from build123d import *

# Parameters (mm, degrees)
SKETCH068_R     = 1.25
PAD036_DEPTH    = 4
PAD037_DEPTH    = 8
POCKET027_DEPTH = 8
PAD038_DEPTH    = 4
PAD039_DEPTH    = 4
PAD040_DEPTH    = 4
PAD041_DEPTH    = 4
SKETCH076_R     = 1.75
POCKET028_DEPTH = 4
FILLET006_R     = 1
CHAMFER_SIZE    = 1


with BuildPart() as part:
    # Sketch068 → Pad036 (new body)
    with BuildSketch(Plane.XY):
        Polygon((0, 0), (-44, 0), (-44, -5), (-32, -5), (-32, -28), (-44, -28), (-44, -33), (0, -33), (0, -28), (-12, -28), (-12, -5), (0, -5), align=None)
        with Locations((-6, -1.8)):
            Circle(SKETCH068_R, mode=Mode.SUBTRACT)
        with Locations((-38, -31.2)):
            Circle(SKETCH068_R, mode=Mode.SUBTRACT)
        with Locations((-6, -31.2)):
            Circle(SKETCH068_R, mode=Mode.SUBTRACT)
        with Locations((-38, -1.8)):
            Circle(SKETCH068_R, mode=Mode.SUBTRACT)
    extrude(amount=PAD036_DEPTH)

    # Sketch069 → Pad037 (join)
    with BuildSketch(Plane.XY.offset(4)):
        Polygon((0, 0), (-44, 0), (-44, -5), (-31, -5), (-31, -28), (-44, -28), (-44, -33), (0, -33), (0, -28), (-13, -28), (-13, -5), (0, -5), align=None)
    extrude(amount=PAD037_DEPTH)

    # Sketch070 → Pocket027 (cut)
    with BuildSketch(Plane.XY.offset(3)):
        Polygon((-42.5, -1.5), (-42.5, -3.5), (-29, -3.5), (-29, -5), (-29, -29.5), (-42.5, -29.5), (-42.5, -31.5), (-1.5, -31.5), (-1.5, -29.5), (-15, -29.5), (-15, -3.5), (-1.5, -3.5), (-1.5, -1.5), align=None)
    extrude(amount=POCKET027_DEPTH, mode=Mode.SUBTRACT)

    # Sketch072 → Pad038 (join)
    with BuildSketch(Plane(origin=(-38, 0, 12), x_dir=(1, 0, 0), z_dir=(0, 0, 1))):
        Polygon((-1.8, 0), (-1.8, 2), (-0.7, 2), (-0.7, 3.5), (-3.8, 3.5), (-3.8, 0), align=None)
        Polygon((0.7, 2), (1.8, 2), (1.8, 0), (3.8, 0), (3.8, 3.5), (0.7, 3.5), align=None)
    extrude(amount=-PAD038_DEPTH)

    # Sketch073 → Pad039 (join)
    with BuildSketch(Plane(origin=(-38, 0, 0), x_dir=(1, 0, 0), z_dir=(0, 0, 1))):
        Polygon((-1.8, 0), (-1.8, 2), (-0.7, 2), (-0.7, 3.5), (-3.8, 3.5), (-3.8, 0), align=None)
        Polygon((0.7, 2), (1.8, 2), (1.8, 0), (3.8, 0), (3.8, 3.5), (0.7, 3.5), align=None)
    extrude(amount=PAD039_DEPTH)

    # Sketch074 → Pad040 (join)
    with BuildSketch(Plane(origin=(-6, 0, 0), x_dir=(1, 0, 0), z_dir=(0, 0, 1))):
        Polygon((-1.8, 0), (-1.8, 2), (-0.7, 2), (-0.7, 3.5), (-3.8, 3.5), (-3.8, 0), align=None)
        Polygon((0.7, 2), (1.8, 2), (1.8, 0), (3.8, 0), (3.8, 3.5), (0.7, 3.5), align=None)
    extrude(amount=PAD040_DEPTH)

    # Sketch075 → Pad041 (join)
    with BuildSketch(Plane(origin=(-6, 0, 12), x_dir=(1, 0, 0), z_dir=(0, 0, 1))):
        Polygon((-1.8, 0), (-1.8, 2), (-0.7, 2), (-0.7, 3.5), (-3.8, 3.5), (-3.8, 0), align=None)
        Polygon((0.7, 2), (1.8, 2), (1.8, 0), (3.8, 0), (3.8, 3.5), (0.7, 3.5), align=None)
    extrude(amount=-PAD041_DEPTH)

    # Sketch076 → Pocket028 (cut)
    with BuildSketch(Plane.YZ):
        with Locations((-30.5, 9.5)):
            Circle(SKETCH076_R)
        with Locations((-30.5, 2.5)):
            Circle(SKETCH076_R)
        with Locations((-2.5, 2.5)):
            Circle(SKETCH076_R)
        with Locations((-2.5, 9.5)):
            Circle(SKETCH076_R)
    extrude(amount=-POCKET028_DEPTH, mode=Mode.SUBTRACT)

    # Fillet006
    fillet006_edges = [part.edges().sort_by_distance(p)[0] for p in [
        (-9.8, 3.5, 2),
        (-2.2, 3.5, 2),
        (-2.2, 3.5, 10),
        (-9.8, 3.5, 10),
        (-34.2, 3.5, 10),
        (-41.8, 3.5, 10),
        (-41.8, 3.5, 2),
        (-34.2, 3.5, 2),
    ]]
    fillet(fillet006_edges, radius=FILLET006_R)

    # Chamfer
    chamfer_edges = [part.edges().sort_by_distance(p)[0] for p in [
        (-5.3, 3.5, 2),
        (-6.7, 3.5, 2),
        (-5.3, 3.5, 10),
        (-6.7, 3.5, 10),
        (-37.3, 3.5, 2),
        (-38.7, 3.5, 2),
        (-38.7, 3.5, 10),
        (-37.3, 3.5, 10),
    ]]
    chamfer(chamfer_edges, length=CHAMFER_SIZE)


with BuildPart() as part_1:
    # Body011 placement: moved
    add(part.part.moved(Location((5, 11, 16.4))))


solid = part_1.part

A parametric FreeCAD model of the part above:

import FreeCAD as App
import Part
import Sketcher
from FreeCAD import Vector


def edges_at(feature, points):
    """Names of the edges that pass closest to the given points."""
    edges = feature.Shape.Edges
    near = lambda p: min(range(len(edges)), key=lambda i: edges[i].distToShape(Part.Vertex(*p))[0])
    return sorted({f"Edge{near(p) + 1}" for p in points})


def add_polygon(sketch, points):
    """Adds a closed chain of lines whose ends are joined by coincident constraints."""
    first, n = sketch.GeometryCount, len(points)
    for a, b in zip(points, points[1:] + points[:1]):
        sketch.addGeometry(Part.LineSegment(App.Vector(*a, 0), App.Vector(*b, 0)), False)
    for i in range(n):
        sketch.addConstraint(Sketcher.Constraint("Coincident", first + i, 2, first + (i + 1) % n, 1))

doc = App.newDocument("Part")
params = doc.addObject("Spreadsheet::Sheet", "Params")
for row, (alias, value) in enumerate([
    ("sketch1_diameter", "2.5 mm"),
    ("sketch1_width", "44 mm"),
    ("sketch1_width2", "12 mm"),
    ("sketch1_height", "5 mm"),
    ("sketch1_height2", "23 mm"),
    ("pad1_length", "4 mm"),
    ("sketch2_width", "44 mm"),
    ("sketch2_width2", "13 mm"),
    ("sketch2_height", "5 mm"),
    ("sketch2_height2", "23 mm"),
    ("pad2_length", "8 mm"),
    ("sketch3_width", "41 mm"),
    ("sketch3_height", "2 mm"),
    ("sketch3_height2", "26 mm"),
    ("sketch3_width2", "13.5 mm"),
    ("pocket1_length", "8 mm"),
    ("sketch4_width", "2 mm"),
    ("sketch4_width2", "1.1 mm"),
    ("sketch4_height", "1.5 mm"),
    ("pad3_length", "4 mm"),
    ("sketch5_width", "2 mm"),
    ("sketch5_width2", "1.1 mm"),
    ("sketch5_height", "1.5 mm"),
    ("pad4_length", "4 mm"),
    ("sketch6_width", "2 mm"),
    ("sketch6_width2", "1.1 mm"),
    ("sketch6_height", "1.5 mm"),
    ("pad5_length", "4 mm"),
    ("sketch7_width", "2 mm"),
    ("sketch7_width2", "1.1 mm"),
    ("sketch7_height", "1.5 mm"),
    ("pad6_length", "4 mm"),
    ("sketch8_diameter", "3.5 mm"),
    ("pocket2_length", "4 mm"),
    ("fillet_radius", "1 mm"),
    ("chamfer_size", "1 mm"),
], start=1):
    params.set(f"A{row}", alias)
    params.set(f"B{row}", "=" + value)
    params.setAlias(f"B{row}", alias)

body = doc.addObject("PartDesign::Body", "Body")

# Sketch on XY plane
sketch1 = body.newObject("Sketcher::SketchObject", "Sketch")
sketch1.AttachmentSupport = (doc.getObject("XY_Plane"), [""])
sketch1.MapMode = "FlatFace"
add_polygon(sketch1, [(0, 0), (-44, 0), (-44, -5), (-32, -5), (-32, -28), (-44, -28), (-44, -33), (0, -33), (0, -28), (-12, -28), (-12, -5), (0, -5)])  # lines 0-11
sketch1.addGeometry(Part.Circle(Vector(-38, -31.2, 0), Vector(0, 0, 1), 1.25), False)  # 12
sketch1.addGeometry(Part.Circle(Vector(-6, -31.2, 0), Vector(0, 0, 1), 1.25), False)  # 13
sketch1.addGeometry(Part.Circle(Vector(-38, -1.8, 0), Vector(0, 0, 1), 1.25), False)  # 14
sketch1.addGeometry(Part.Circle(Vector(-6, -1.8, 0), Vector(0, 0, 1), 1.25), False)  # 15
sketch1.addConstraint([
    Sketcher.Constraint("Horizontal", 0),
    Sketcher.Constraint("Vertical", 1),
    Sketcher.Constraint("Horizontal", 2),
    Sketcher.Constraint("Vertical", 3),
    Sketcher.Constraint("Horizontal", 4),
    Sketcher.Constraint("Vertical", 5),
    Sketcher.Constraint("Horizontal", 6),
    Sketcher.Constraint("Vertical", 7),
    Sketcher.Constraint("Horizontal", 8),
    Sketcher.Constraint("Vertical", 9),
    Sketcher.Constraint("Horizontal", 10),
    Sketcher.Constraint("Vertical", 11),
    Sketcher.Constraint("Coincident", 11, 2, -1, 1),
    Sketcher.Constraint("Equal", 12, 13),
    Sketcher.Constraint("Equal", 13, 14),
    Sketcher.Constraint("Equal", 14, 15),
    Sketcher.Constraint("PointOnObject", 6, 2, -2),
    Sketcher.Constraint("Horizontal", 12, 3, 13, 3),
    Sketcher.Constraint("Horizontal", 14, 3, 15, 3),
    Sketcher.Constraint("Horizontal", 4, 2, 7, 2),
    Sketcher.Constraint("Horizontal", 2, 2, 9, 2),
    Sketcher.Constraint("Vertical", 12, 3, 14, 3),
    Sketcher.Constraint("Vertical", 13, 3, 15, 3),
    Sketcher.Constraint("Vertical", 1, 2, 4, 2),
    Sketcher.Constraint("Equal", 4, 8),
    Sketcher.Constraint("Equal", 1, 5),
    Sketcher.Constraint("Diameter", 12, 2.5),
    Sketcher.Constraint("DistanceX", 0, 2, 0, 1, 44.0),
    Sketcher.Constraint("DistanceX", 2, 1, 2, 2, 12.0),
    Sketcher.Constraint("DistanceY", 1, 2, 1, 1, 5.0),
    Sketcher.Constraint("DistanceY", 3, 2, 3, 1, 23.0),
    Sketcher.Constraint("DistanceX", 12, 3, -1, 1, 38.0),
    Sketcher.Constraint("DistanceX", 13, 3, -1, 1, 6.0),
    Sketcher.Constraint("DistanceY", 12, 3, -1, 1, 31.2),
    Sketcher.Constraint("DistanceY", 14, 3, -1, 1, 1.8),
])
sketch1.setExpression("Constraints[38]", "Params.sketch1_diameter")
sketch1.setExpression("Constraints[39]", "Params.sketch1_width")
sketch1.setExpression("Constraints[40]", "Params.sketch1_width2")
sketch1.setExpression("Constraints[41]", "Params.sketch1_height")
sketch1.setExpression("Constraints[42]", "Params.sketch1_height2")
pad1 = body.newObject("PartDesign::Pad", "Pad")
pad1.Profile = sketch1
pad1.setExpression("Length", "Params.pad1_length")

# Sketch on XY plane
sketch2 = body.newObject("Sketcher::SketchObject", "Sketch001")
sketch2.AttachmentSupport = (doc.getObject("XY_Plane"), [""])
sketch2.MapMode = "FlatFace"
sketch2.AttachmentOffset = App.Placement(Vector(0, 0, 4), App.Rotation())
add_polygon(sketch2, [(0, 0), (-44, 0), (-44, -5), (-31, -5), (-31, -28), (-44, -28), (-44, -33), (0, -33), (0, -28), (-13, -28), (-13, -5), (0, -5)])  # lines 0-11
sketch2.addConstraint([
    Sketcher.Constraint("Horizontal", 0),
    Sketcher.Constraint("Vertical", 1),
    Sketcher.Constraint("Horizontal", 2),
    Sketcher.Constraint("Vertical", 3),
    Sketcher.Constraint("Horizontal", 4),
    Sketcher.Constraint("Vertical", 5),
    Sketcher.Constraint("Horizontal", 6),
    Sketcher.Constraint("Vertical", 7),
    Sketcher.Constraint("Horizontal", 8),
    Sketcher.Constraint("Vertical", 9),
    Sketcher.Constraint("Horizontal", 10),
    Sketcher.Constraint("Vertical", 11),
    Sketcher.Constraint("Coincident", 11, 2, -1, 1),
    Sketcher.Constraint("PointOnObject", 6, 2, -2),
    Sketcher.Constraint("Horizontal", 4, 2, 7, 2),
    Sketcher.Constraint("Horizontal", 2, 2, 9, 2),
    Sketcher.Constraint("Vertical", 1, 2, 4, 2),
    Sketcher.Constraint("Equal", 4, 8),
    Sketcher.Constraint("Equal", 1, 5),
    Sketcher.Constraint("DistanceX", 0, 2, 0, 1, 44.0),
    Sketcher.Constraint("DistanceX", 2, 1, 2, 2, 13.0),
    Sketcher.Constraint("DistanceY", 1, 2, 1, 1, 5.0),
    Sketcher.Constraint("DistanceY", 3, 2, 3, 1, 23.0),
])
sketch2.setExpression("Constraints[31]", "Params.sketch2_width")
sketch2.setExpression("Constraints[32]", "Params.sketch2_width2")
sketch2.setExpression("Constraints[33]", "Params.sketch2_height")
sketch2.setExpression("Constraints[34]", "Params.sketch2_height2")
pad2 = body.newObject("PartDesign::Pad", "Pad001")
pad2.Profile = sketch2
pad2.setExpression("Length", "Params.pad2_length")

# Sketch on XY plane
sketch3 = body.newObject("Sketcher::SketchObject", "Sketch002")
sketch3.AttachmentSupport = (doc.getObject("XY_Plane"), [""])
sketch3.MapMode = "FlatFace"
sketch3.AttachmentOffset = App.Placement(Vector(0, 0, 3), App.Rotation())
add_polygon(sketch3, [(-42.5, -1.5), (-42.5, -3.5), (-29, -3.5), (-29, -29.5), (-42.5, -29.5), (-42.5, -31.5), (-1.5, -31.5), (-1.5, -29.5), (-15, -29.5), (-15, -3.5), (-1.5, -3.5), (-1.5, -1.5)])  # lines 0-11
sketch3.addConstraint([
    Sketcher.Constraint("Vertical", 0),
    Sketcher.Constraint("Horizontal", 1),
    Sketcher.Constraint("Vertical", 2),
    Sketcher.Constraint("Horizontal", 3),
    Sketcher.Constraint("Vertical", 4),
    Sketcher.Constraint("Horizontal", 5),
    Sketcher.Constraint("Vertical", 6),
    Sketcher.Constraint("Horizontal", 7),
    Sketcher.Constraint("Vertical", 8),
    Sketcher.Constraint("Horizontal", 9),
    Sketcher.Constraint("Vertical", 10),
    Sketcher.Constraint("Horizontal", 11),
    Sketcher.Constraint("Horizontal", 3, 2, 6, 2),
    Sketcher.Constraint("Horizontal", 1, 2, 8, 2),
    Sketcher.Constraint("Vertical", 0, 2, 3, 2),
    Sketcher.Constraint("Vertical", 6, 2, 9, 2),
    Sketcher.Constraint("Equal", 3, 7),
    Sketcher.Constraint("Equal", 0, 4),
    Sketcher.Constraint("DistanceX", 5, 1, 5, 2, 41.0),
    Sketcher.Constraint("DistanceY", 0, 2, 0, 1, 2.0),
    Sketcher.Constraint("DistanceY", 2, 2, 2, 1, 26.0),
    Sketcher.Constraint("DistanceX", 1, 1, 1, 2, 13.5),
    Sketcher.Constraint("DistanceX", 1, 2, -1, 1, 29.0),
    Sketcher.Constraint("DistanceY", 0, 2, -1, 1, 3.5),
])
sketch3.setExpression("Constraints[30]", "Params.sketch3_width")
sketch3.setExpression("Constraints[31]", "Params.sketch3_height")
sketch3.setExpression("Constraints[32]", "Params.sketch3_height2")
sketch3.setExpression("Constraints[33]", "Params.sketch3_width2")
pocket1 = body.newObject("PartDesign::Pocket", "Pocket")
pocket1.Profile = sketch3
pocket1.setExpression("Length", "Params.pocket1_length")
pocket1.Reversed = True

# Sketch on XY plane
sketch4 = body.newObject("Sketcher::SketchObject", "Sketch003")
sketch4.AttachmentSupport = (doc.getObject("XY_Plane"), [""])
sketch4.MapMode = "FlatFace"
sketch4.AttachmentOffset = App.Placement(Vector(0, 0, 12), App.Rotation())
add_polygon(sketch4, [(-39.8, 0), (-39.8, 2), (-38.7, 2), (-38.7, 3.5), (-41.8, 3.5), (-41.8, 0)])  # lines 0-5
add_polygon(sketch4, [(-37.3, 2), (-36.2, 2), (-36.2, 0), (-34.2, 0), (-34.2, 3.5), (-37.3, 3.5)])  # lines 6-11
sketch4.addConstraint([
    Sketcher.Constraint("Vertical", 0),
    Sketcher.Constraint("Horizontal", 1),
    Sketcher.Constraint("Vertical", 2),
    Sketcher.Constraint("Horizontal", 3),
    Sketcher.Constraint("Vertical", 4),
    Sketcher.Constraint("Horizontal", 5),
    Sketcher.Constraint("Horizontal", 6),
    Sketcher.Constraint("Vertical", 7),
    Sketcher.Constraint("Horizontal", 8),
    Sketcher.Constraint("Vertical", 9),
    Sketcher.Constraint("Horizontal", 10),
    Sketcher.Constraint("Vertical", 11),
    Sketcher.Constraint("PointOnObject", 4, 2, -1),
    Sketcher.Constraint("PointOnObject", 7, 2, -1),
    Sketcher.Constraint("Horizontal", 1, 2, 6, 2),
    Sketcher.Constraint("Horizontal", 3, 2, 9, 2),
    Sketcher.Constraint("Equal", 1, 6),
    Sketcher.Constraint("Equal", 5, 8),
    Sketcher.Constraint("Equal", 8, 0),
    Sketcher.Constraint("DistanceX", 5, 1, 5, 2, 2.0),
    Sketcher.Constraint("DistanceX", 1, 1, 1, 2, 1.1),
    Sketcher.Constraint("DistanceY", 2, 1, 2, 2, 1.5),
    Sketcher.Constraint("DistanceX", 0, 2, -1, 1, 39.8),
    Sketcher.Constraint("DistanceX", 6, 2, -1, 1, 36.2),
])
sketch4.setExpression("Constraints[31]", "Params.sketch4_width")
sketch4.setExpression("Constraints[32]", "Params.sketch4_width2")
sketch4.setExpression("Constraints[33]", "Params.sketch4_height")
pad3 = body.newObject("PartDesign::Pad", "Pad002")
pad3.Profile = sketch4
pad3.setExpression("Length", "Params.pad3_length")
pad3.Reversed = True

# Sketch on XY plane
sketch5 = body.newObject("Sketcher::SketchObject", "Sketch004")
sketch5.AttachmentSupport = (doc.getObject("XY_Plane"), [""])
sketch5.MapMode = "FlatFace"
add_polygon(sketch5, [(-39.8, 0), (-39.8, 2), (-38.7, 2), (-38.7, 3.5), (-41.8, 3.5), (-41.8, 0)])  # lines 0-5
add_polygon(sketch5, [(-37.3, 2), (-36.2, 2), (-36.2, 0), (-34.2, 0), (-34.2, 3.5), (-37.3, 3.5)])  # lines 6-11
sketch5.addConstraint([
    Sketcher.Constraint("Vertical", 0),
    Sketcher.Constraint("Horizontal", 1),
    Sketcher.Constraint("Vertical", 2),
    Sketcher.Constraint("Horizontal", 3),
    Sketcher.Constraint("Vertical", 4),
    Sketcher.Constraint("Horizontal", 5),
    Sketcher.Constraint("Horizontal", 6),
    Sketcher.Constraint("Vertical", 7),
    Sketcher.Constraint("Horizontal", 8),
    Sketcher.Constraint("Vertical", 9),
    Sketcher.Constraint("Horizontal", 10),
    Sketcher.Constraint("Vertical", 11),
    Sketcher.Constraint("PointOnObject", 4, 2, -1),
    Sketcher.Constraint("PointOnObject", 7, 2, -1),
    Sketcher.Constraint("Horizontal", 1, 2, 6, 2),
    Sketcher.Constraint("Horizontal", 3, 2, 9, 2),
    Sketcher.Constraint("Equal", 1, 6),
    Sketcher.Constraint("Equal", 5, 8),
    Sketcher.Constraint("Equal", 8, 0),
    Sketcher.Constraint("DistanceX", 5, 1, 5, 2, 2.0),
    Sketcher.Constraint("DistanceX", 1, 1, 1, 2, 1.1),
    Sketcher.Constraint("DistanceY", 2, 1, 2, 2, 1.5),
    Sketcher.Constraint("DistanceX", 0, 2, -1, 1, 39.8),
    Sketcher.Constraint("DistanceX", 6, 2, -1, 1, 36.2),
])
sketch5.setExpression("Constraints[31]", "Params.sketch5_width")
sketch5.setExpression("Constraints[32]", "Params.sketch5_width2")
sketch5.setExpression("Constraints[33]", "Params.sketch5_height")
pad4 = body.newObject("PartDesign::Pad", "Pad003")
pad4.Profile = sketch5
pad4.setExpression("Length", "Params.pad4_length")

# Sketch on XY plane
sketch6 = body.newObject("Sketcher::SketchObject", "Sketch005")
sketch6.AttachmentSupport = (doc.getObject("XY_Plane"), [""])
sketch6.MapMode = "FlatFace"
add_polygon(sketch6, [(-7.8, 0), (-7.8, 2), (-6.7, 2), (-6.7, 3.5), (-9.8, 3.5), (-9.8, 0)])  # lines 0-5
add_polygon(sketch6, [(-5.3, 2), (-4.2, 2), (-4.2, 0), (-2.2, 0), (-2.2, 3.5), (-5.3, 3.5)])  # lines 6-11
sketch6.addConstraint([
    Sketcher.Constraint("Vertical", 0),
    Sketcher.Constraint("Horizontal", 1),
    Sketcher.Constraint("Vertical", 2),
    Sketcher.Constraint("Horizontal", 3),
    Sketcher.Constraint("Vertical", 4),
    Sketcher.Constraint("Horizontal", 5),
    Sketcher.Constraint("Horizontal", 6),
    Sketcher.Constraint("Vertical", 7),
    Sketcher.Constraint("Horizontal", 8),
    Sketcher.Constraint("Vertical", 9),
    Sketcher.Constraint("Horizontal", 10),
    Sketcher.Constraint("Vertical", 11),
    Sketcher.Constraint("PointOnObject", 4, 2, -1),
    Sketcher.Constraint("PointOnObject", 7, 2, -1),
    Sketcher.Constraint("Horizontal", 1, 2, 6, 2),
    Sketcher.Constraint("Horizontal", 3, 2, 9, 2),
    Sketcher.Constraint("Equal", 1, 6),
    Sketcher.Constraint("Equal", 5, 8),
    Sketcher.Constraint("Equal", 8, 0),
    Sketcher.Constraint("DistanceX", 5, 1, 5, 2, 2.0),
    Sketcher.Constraint("DistanceX", 1, 1, 1, 2, 1.1),
    Sketcher.Constraint("DistanceY", 2, 1, 2, 2, 1.5),
    Sketcher.Constraint("DistanceX", 0, 2, -1, 1, 7.8),
    Sketcher.Constraint("DistanceX", 6, 2, -1, 1, 4.2),
])
sketch6.setExpression("Constraints[31]", "Params.sketch6_width")
sketch6.setExpression("Constraints[32]", "Params.sketch6_width2")
sketch6.setExpression("Constraints[33]", "Params.sketch6_height")
pad5 = body.newObject("PartDesign::Pad", "Pad004")
pad5.Profile = sketch6
pad5.setExpression("Length", "Params.pad5_length")

# Sketch on XY plane
sketch7 = body.newObject("Sketcher::SketchObject", "Sketch006")
sketch7.AttachmentSupport = (doc.getObject("XY_Plane"), [""])
sketch7.MapMode = "FlatFace"
sketch7.AttachmentOffset = App.Placement(Vector(0, 0, 12), App.Rotation())
add_polygon(sketch7, [(-7.8, 0), (-7.8, 2), (-6.7, 2), (-6.7, 3.5), (-9.8, 3.5), (-9.8, 0)])  # lines 0-5
add_polygon(sketch7, [(-5.3, 2), (-4.2, 2), (-4.2, 0), (-2.2, 0), (-2.2, 3.5), (-5.3, 3.5)])  # lines 6-11
sketch7.addConstraint([
    Sketcher.Constraint("Vertical", 0),
    Sketcher.Constraint("Horizontal", 1),
    Sketcher.Constraint("Vertical", 2),
    Sketcher.Constraint("Horizontal", 3),
    Sketcher.Constraint("Vertical", 4),
    Sketcher.Constraint("Horizontal", 5),
    Sketcher.Constraint("Horizontal", 6),
    Sketcher.Constraint("Vertical", 7),
    Sketcher.Constraint("Horizontal", 8),
    Sketcher.Constraint("Vertical", 9),
    Sketcher.Constraint("Horizontal", 10),
    Sketcher.Constraint("Vertical", 11),
    Sketcher.Constraint("PointOnObject", 4, 2, -1),
    Sketcher.Constraint("PointOnObject", 7, 2, -1),
    Sketcher.Constraint("Horizontal", 1, 2, 6, 2),
    Sketcher.Constraint("Horizontal", 3, 2, 9, 2),
    Sketcher.Constraint("Equal", 1, 6),
    Sketcher.Constraint("Equal", 5, 8),
    Sketcher.Constraint("Equal", 8, 0),
    Sketcher.Constraint("DistanceX", 5, 1, 5, 2, 2.0),
    Sketcher.Constraint("DistanceX", 1, 1, 1, 2, 1.1),
    Sketcher.Constraint("DistanceY", 2, 1, 2, 2, 1.5),
    Sketcher.Constraint("DistanceX", 0, 2, -1, 1, 7.8),
    Sketcher.Constraint("DistanceX", 6, 2, -1, 1, 4.2),
])
sketch7.setExpression("Constraints[31]", "Params.sketch7_width")
sketch7.setExpression("Constraints[32]", "Params.sketch7_width2")
sketch7.setExpression("Constraints[33]", "Params.sketch7_height")
pad6 = body.newObject("PartDesign::Pad", "Pad005")
pad6.Profile = sketch7
pad6.setExpression("Length", "Params.pad6_length")
pad6.Reversed = True

# Sketch on YZ plane
sketch8 = body.newObject("Sketcher::SketchObject", "Sketch007")
sketch8.AttachmentSupport = (doc.getObject("YZ_Plane"), [""])
sketch8.MapMode = "FlatFace"
sketch8.addGeometry([
    Part.Circle(Vector(-30.5, 9.5, 0), Vector(0, 0, 1), 1.75),
    Part.Circle(Vector(-30.5, 2.5, 0), Vector(0, 0, 1), 1.75),
    Part.Circle(Vector(-2.5, 2.5, 0), Vector(0, 0, 1), 1.75),
    Part.Circle(Vector(-2.5, 9.5, 0), Vector(0, 0, 1), 1.75),
], False)
sketch8.addConstraint([
    Sketcher.Constraint("Equal", 0, 1),
    Sketcher.Constraint("Equal", 1, 2),
    Sketcher.Constraint("Equal", 2, 3),
    Sketcher.Constraint("Horizontal", 1, 3, 2, 3),
    Sketcher.Constraint("Horizontal", 0, 3, 3, 3),
    Sketcher.Constraint("Vertical", 0, 3, 1, 3),
    Sketcher.Constraint("Vertical", 2, 3, 3, 3),
    Sketcher.Constraint("Diameter", 0, 3.5),
    Sketcher.Constraint("DistanceY", 1, 3, 0, 3, 7.0),
    Sketcher.Constraint("DistanceX", 1, 3, 2, 3, 28.0),
    Sketcher.Constraint("DistanceX", 0, 3, -1, 1, 30.5),
    Sketcher.Constraint("DistanceY", -1, 1, 0, 3, 9.5),
])
sketch8.setExpression("Constraints[7]", "Params.sketch8_diameter")
pocket2 = body.newObject("PartDesign::Pocket", "Pocket001")
pocket2.Profile = sketch8
pocket2.setExpression("Length", "Params.pocket2_length")
doc.recompute()

fillet = body.newObject("PartDesign::Fillet", "Fillet")
fillet.Base = (pocket2, edges_at(pocket2, [
    (-9.8, 3.5, 2),
    (-2.2, 3.5, 2),
    (-2.2, 3.5, 10),
    (-9.8, 3.5, 10),
    (-34.2, 3.5, 10),
    (-41.8, 3.5, 10),
    (-41.8, 3.5, 2),
    (-34.2, 3.5, 2),
]))
fillet.setExpression("Radius", "Params.fillet_radius")
doc.recompute()

chamfer = body.newObject("PartDesign::Chamfer", "Chamfer")
chamfer.Base = (fillet, edges_at(fillet, [
    (-5.3, 3.5, 2),
    (-6.7, 3.5, 2),
    (-5.3, 3.5, 10),
    (-6.7, 3.5, 10),
    (-37.3, 3.5, 2),
    (-38.7, 3.5, 2),
    (-38.7, 3.5, 10),
    (-37.3, 3.5, 10),
]))
chamfer.setExpression("Size", "Params.chamfer_size")
body2 = doc.addObject("PartDesign::Body", "Body001")
doc.recompute()

body.Placement = App.Placement(Vector(5, 11, 16.4), App.Rotation(Vector(0, 0, 1), 0))
boolean = body2.newObject("PartDesign::Boolean", "Boolean")
boolean.Type = "Fuse"
boolean.addObjects([body])

doc.recompute()
